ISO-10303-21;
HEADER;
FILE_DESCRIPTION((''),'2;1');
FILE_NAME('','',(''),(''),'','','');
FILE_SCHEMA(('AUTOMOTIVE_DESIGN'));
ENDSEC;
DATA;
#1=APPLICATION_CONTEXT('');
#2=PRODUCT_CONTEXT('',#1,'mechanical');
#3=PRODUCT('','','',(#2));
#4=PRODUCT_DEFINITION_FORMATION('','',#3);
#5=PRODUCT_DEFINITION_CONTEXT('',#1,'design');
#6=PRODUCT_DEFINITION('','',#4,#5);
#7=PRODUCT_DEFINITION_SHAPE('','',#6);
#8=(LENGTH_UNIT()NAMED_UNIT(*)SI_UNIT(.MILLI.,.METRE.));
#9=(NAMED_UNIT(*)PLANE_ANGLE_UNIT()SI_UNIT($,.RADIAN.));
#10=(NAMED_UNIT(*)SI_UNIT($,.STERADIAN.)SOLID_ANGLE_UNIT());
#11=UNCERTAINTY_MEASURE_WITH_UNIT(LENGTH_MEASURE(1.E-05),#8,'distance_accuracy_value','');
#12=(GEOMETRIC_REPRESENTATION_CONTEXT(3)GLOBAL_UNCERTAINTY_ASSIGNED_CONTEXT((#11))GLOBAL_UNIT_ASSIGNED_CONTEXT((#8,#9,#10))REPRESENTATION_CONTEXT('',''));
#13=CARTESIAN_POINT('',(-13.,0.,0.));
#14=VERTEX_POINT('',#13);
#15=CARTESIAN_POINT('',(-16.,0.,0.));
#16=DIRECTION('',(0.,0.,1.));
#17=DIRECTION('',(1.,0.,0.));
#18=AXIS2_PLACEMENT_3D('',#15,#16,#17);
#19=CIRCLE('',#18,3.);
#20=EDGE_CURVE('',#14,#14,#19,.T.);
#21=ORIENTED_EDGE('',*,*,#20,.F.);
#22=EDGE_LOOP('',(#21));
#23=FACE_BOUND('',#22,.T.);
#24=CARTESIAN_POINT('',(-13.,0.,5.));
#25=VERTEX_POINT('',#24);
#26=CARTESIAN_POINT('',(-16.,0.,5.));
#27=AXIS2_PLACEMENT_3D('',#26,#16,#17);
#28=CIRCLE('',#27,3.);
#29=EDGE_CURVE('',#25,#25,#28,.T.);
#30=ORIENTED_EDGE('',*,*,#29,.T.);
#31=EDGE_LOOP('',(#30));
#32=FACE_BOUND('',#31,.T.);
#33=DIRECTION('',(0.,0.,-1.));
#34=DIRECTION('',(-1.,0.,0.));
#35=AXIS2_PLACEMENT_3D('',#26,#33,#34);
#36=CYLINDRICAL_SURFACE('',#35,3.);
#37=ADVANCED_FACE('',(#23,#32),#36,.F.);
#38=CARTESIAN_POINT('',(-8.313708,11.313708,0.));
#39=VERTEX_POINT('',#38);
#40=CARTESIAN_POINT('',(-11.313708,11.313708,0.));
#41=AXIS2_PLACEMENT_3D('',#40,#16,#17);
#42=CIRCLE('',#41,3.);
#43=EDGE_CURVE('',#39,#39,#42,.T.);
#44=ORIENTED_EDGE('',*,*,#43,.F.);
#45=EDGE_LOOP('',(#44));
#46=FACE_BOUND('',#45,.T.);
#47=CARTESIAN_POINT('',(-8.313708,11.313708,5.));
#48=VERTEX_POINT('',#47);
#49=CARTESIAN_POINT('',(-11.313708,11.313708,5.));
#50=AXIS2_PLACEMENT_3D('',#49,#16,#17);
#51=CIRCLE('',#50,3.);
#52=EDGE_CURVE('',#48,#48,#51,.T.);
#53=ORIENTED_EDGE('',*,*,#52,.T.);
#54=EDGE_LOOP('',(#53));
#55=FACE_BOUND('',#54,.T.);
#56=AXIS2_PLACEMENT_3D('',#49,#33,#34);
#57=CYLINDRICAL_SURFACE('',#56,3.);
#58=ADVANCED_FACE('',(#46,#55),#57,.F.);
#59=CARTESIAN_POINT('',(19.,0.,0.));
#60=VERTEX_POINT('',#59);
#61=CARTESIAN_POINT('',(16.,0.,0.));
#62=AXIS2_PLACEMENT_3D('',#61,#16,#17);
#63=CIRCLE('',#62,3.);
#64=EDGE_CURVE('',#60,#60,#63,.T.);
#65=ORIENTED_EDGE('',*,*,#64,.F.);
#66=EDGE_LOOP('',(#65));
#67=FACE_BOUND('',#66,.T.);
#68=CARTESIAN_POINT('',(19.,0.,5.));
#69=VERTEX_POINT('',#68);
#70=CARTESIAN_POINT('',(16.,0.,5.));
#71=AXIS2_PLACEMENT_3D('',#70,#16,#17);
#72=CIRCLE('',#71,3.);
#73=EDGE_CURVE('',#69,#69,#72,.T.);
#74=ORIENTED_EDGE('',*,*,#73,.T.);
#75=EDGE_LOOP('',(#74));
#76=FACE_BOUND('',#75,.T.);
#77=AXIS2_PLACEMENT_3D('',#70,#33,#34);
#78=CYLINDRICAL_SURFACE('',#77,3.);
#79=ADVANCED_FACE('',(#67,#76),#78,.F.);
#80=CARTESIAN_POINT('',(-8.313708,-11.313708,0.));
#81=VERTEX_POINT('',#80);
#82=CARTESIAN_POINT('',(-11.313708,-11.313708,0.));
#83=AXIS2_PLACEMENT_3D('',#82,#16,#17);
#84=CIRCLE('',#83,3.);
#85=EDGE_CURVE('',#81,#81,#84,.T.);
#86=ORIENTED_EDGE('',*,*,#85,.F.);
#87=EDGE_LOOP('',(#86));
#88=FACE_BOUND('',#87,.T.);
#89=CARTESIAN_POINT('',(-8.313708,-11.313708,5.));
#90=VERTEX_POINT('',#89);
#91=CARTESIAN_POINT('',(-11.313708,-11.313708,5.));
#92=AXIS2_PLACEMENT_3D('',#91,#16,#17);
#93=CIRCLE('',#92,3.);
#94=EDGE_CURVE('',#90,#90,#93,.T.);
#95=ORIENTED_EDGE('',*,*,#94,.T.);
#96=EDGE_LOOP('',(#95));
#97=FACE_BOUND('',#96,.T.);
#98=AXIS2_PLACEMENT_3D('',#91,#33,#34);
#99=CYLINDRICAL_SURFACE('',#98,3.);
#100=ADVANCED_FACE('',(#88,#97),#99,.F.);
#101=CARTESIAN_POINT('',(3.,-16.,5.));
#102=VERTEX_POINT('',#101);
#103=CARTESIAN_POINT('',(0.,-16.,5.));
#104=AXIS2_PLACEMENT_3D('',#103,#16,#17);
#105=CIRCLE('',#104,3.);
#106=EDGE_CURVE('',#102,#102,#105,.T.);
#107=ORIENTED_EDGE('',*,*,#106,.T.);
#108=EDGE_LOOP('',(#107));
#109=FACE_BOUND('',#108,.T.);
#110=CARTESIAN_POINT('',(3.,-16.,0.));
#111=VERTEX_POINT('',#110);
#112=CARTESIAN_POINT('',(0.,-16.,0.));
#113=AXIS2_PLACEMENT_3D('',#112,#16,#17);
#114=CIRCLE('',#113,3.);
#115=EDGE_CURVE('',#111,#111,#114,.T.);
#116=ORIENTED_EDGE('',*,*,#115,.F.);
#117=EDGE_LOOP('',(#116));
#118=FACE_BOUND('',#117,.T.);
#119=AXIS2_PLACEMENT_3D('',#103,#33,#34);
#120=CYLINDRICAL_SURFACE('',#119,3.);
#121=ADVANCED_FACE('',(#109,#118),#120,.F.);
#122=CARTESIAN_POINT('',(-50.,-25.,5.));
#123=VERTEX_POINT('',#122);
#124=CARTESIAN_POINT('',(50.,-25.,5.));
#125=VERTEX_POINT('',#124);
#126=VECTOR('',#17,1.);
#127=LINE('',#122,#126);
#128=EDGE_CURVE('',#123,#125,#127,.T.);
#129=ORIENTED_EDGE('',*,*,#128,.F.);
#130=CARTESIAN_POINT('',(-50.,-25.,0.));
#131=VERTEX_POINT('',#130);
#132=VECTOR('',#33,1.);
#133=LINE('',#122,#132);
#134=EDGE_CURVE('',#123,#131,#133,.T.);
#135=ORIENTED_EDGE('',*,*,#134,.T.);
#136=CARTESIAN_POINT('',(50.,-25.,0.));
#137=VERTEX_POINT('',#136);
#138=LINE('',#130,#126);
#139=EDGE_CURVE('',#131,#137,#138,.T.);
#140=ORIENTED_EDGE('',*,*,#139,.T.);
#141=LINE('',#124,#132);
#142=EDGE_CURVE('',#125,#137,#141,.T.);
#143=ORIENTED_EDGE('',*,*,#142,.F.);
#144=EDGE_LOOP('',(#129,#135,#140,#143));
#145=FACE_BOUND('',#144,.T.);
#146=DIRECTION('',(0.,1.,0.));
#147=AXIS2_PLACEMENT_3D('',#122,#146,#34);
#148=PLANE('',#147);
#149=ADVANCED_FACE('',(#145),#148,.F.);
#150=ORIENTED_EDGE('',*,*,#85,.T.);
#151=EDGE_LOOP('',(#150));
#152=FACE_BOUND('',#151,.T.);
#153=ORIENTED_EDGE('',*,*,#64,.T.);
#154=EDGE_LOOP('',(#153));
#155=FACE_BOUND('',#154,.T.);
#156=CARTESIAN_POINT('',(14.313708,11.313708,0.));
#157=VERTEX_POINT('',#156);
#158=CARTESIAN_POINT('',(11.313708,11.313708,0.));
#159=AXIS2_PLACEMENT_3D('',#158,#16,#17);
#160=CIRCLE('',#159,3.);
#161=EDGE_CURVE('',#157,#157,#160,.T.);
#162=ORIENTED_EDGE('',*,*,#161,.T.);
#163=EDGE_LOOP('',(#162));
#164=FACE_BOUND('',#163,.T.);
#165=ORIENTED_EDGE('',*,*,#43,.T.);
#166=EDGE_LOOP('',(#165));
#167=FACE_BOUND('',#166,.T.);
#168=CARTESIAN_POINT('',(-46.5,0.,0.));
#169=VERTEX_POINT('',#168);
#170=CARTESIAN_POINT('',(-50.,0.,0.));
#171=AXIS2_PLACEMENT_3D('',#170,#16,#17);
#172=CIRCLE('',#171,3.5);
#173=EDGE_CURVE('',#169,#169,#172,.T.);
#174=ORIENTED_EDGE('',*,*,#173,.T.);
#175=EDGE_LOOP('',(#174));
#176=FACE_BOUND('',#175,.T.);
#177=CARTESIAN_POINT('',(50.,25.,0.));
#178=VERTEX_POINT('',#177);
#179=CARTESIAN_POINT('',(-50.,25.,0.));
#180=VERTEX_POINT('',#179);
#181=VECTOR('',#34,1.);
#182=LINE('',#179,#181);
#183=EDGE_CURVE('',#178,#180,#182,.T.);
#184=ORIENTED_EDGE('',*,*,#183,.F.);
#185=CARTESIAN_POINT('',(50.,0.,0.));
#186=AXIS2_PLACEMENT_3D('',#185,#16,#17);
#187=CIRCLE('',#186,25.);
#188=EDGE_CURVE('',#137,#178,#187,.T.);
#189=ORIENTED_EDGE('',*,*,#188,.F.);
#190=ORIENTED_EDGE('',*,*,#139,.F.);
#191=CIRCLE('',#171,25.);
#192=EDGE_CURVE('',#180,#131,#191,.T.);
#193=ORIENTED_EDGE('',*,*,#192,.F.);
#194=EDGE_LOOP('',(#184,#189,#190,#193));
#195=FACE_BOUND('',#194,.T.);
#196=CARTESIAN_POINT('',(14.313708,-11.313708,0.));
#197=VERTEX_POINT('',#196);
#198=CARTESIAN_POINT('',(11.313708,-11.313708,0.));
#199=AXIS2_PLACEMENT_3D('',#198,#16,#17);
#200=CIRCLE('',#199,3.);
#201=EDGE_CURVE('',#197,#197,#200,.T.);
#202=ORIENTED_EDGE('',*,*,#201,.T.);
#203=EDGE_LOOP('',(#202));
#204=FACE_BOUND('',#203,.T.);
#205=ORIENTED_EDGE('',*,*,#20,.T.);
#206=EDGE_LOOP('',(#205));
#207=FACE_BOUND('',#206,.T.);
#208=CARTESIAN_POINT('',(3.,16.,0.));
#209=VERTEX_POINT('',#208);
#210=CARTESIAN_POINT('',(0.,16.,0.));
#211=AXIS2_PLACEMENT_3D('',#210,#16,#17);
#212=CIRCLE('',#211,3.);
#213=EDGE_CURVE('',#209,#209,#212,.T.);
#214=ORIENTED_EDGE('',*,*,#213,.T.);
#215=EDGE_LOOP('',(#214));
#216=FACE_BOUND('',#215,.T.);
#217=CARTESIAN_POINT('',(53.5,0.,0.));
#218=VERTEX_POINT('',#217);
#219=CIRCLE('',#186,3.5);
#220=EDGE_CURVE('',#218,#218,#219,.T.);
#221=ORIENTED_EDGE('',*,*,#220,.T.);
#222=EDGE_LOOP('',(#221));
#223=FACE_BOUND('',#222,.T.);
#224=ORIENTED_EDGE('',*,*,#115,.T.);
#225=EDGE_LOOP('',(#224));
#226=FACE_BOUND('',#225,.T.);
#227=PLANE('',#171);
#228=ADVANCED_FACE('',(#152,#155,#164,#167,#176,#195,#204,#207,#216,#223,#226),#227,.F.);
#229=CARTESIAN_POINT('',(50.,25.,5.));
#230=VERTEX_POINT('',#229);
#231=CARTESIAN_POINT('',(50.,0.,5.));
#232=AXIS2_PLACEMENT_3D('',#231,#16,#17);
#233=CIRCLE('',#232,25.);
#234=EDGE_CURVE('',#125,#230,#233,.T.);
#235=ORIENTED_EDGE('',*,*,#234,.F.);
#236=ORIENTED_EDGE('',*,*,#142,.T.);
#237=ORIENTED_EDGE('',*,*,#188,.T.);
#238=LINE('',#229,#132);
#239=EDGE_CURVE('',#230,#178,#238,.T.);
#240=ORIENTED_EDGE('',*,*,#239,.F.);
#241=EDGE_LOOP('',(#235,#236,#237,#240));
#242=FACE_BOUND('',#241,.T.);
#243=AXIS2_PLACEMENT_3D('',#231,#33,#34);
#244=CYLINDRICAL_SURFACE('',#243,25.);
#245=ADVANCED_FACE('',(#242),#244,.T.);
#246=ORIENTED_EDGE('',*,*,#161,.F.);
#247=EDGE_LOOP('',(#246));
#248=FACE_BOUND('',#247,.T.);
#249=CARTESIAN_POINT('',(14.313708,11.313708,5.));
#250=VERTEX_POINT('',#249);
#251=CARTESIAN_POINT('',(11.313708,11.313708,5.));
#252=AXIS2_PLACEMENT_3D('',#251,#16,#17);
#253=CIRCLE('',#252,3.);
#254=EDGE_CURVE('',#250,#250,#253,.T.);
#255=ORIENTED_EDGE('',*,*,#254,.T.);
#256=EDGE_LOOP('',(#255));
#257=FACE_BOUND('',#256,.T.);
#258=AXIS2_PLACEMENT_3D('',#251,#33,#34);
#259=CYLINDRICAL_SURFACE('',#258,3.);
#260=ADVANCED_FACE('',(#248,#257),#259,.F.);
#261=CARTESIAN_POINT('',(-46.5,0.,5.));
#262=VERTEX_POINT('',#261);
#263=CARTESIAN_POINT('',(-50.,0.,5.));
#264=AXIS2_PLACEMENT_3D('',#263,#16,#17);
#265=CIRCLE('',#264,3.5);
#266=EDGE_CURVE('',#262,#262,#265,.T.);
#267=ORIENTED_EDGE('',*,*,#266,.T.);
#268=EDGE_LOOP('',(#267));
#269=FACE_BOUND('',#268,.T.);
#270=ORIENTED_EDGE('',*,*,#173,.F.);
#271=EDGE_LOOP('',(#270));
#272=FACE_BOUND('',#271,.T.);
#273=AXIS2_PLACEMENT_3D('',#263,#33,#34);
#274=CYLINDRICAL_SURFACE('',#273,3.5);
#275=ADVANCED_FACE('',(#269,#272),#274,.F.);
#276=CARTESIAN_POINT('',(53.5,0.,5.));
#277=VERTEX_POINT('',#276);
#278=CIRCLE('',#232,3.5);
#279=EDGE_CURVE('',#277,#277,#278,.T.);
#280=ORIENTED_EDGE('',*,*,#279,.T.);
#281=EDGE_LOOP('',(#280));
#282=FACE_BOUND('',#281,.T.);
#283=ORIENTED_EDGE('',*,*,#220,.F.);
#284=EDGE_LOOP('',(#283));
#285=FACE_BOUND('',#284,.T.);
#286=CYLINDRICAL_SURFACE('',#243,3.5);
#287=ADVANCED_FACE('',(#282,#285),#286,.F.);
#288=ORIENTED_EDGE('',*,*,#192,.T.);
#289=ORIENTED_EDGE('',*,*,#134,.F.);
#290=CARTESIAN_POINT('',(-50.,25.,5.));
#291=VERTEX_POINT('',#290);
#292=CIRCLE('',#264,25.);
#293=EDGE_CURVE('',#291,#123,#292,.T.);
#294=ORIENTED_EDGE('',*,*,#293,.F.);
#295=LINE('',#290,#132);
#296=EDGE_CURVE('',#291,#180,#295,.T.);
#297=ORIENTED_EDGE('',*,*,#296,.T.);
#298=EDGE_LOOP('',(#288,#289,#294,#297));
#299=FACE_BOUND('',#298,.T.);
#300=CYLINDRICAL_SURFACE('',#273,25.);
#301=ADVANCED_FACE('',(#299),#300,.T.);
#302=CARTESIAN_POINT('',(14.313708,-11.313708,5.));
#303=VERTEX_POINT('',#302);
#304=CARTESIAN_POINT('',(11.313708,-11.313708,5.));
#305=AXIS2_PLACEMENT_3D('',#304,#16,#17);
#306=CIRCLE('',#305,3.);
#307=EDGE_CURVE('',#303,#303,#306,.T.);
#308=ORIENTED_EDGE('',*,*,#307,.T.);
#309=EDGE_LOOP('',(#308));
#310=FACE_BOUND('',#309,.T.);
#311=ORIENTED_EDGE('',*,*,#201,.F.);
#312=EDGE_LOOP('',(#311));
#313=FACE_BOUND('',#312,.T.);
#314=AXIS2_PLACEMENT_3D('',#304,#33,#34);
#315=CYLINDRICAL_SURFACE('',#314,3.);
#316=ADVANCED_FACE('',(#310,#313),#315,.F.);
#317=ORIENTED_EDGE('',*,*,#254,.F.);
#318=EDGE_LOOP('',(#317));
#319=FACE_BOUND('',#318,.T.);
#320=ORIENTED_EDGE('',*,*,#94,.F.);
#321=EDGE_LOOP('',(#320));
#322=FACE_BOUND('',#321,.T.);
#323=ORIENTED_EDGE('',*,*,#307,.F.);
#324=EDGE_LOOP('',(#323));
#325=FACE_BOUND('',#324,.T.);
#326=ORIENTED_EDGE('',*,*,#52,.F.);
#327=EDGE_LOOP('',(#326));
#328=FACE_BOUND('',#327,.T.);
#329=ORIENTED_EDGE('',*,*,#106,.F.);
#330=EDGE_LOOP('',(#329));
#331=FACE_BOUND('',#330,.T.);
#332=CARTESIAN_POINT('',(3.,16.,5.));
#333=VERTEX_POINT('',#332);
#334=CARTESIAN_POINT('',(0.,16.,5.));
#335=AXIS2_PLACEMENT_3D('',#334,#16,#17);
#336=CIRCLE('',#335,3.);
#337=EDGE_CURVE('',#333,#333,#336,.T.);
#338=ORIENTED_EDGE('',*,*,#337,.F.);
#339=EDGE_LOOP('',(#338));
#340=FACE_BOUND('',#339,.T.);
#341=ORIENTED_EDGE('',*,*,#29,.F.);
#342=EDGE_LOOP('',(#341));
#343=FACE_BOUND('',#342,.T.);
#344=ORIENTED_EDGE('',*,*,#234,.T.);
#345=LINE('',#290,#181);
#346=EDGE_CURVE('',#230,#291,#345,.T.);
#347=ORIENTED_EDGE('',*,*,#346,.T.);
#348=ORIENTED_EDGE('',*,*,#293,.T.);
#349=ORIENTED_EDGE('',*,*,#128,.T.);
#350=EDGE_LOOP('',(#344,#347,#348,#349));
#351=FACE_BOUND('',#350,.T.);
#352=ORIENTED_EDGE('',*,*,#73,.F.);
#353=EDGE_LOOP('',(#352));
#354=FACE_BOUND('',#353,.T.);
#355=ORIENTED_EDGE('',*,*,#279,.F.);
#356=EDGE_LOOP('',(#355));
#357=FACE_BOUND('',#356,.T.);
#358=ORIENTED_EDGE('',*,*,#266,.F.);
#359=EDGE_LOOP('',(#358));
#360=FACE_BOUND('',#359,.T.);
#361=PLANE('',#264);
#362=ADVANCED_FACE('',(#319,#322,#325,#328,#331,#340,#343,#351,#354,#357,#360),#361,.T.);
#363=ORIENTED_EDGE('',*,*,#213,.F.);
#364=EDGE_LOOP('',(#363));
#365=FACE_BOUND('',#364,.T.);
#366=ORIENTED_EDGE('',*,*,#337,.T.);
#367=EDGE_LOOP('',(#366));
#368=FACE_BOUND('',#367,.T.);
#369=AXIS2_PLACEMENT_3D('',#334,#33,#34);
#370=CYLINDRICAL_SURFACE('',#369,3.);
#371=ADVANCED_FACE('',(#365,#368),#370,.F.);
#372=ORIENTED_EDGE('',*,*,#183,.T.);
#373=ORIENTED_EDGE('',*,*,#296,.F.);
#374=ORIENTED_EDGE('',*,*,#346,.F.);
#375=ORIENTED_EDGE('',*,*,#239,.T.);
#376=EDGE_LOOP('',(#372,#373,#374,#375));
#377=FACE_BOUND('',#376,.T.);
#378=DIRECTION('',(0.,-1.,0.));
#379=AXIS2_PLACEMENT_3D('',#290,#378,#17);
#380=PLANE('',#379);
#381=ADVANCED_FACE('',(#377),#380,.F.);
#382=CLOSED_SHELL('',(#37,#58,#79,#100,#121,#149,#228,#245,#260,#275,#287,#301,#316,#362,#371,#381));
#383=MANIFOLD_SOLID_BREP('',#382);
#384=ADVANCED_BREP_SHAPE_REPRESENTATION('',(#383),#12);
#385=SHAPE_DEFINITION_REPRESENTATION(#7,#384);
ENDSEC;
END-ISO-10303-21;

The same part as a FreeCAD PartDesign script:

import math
import FreeCAD as App
import Part
import Sketcher

V = App.Vector

doc = App.newDocument("Part")
body = doc.addObject("PartDesign::Body", "Body")

sketch1 = body.newObject("Sketcher::SketchObject", "Sketch")
sketch1.AttachmentSupport = (doc.getObject("XY_Plane"), [""])
sketch1.MapMode = "FlatFace"
sketch1.addGeometry(Part.LineSegment(V(50, 25, 0), V(-50, 25, 0)), False)
sketch1.addGeometry(Part.ArcOfCircle(Part.Circle(V(-50, 0, 0), V(0, 0, 1), 25), math.radians(90), math.radians(270)), False)
sketch1.addGeometry(Part.LineSegment(V(-50, -25, 0), V(50, -25, 0)), False)
sketch1.addGeometry(Part.ArcOfCircle(Part.Circle(V(50, 0, 0), V(0, 0, 1), 25), math.radians(-90), math.radians(90)), False)
sketch1.addGeometry(Part.Circle(V(0, -16, 0), V(0, 0, 1), 3), False)
sketch1.addGeometry(Part.Circle(V(11.3, -11.3, 0), V(0, 0, 1), 3), False)
sketch1.addGeometry(Part.Circle(V(-11.3, -11.3, 0), V(0, 0, 1), 3), False)
sketch1.addGeometry(Part.Circle(V(50, 0, 0), V(0, 0, 1), 3.5), False)
sketch1.addGeometry(Part.Circle(V(16, 0, 0), V(0, 0, 1), 3), False)
sketch1.addGeometry(Part.Circle(V(11.3, 11.3, 0), V(0, 0, 1), 3), False)
sketch1.addGeometry(Part.Circle(V(0, 16, 0), V(0, 0, 1), 3), False)
sketch1.addGeometry(Part.Circle(V(-16, 0, 0), V(0, 0, 1), 3), False)
sketch1.addGeometry(Part.Circle(V(-50, 0, 0), V(0, 0, 1), 3.5), False)
sketch1.addGeometry(Part.Circle(V(-11.3, 11.3, 0), V(0, 0, 1), 3), False)
sketch1.addConstraint(Sketcher.Constraint("Tangent", 0, 2, 1, 1))
sketch1.addConstraint(Sketcher.Constraint("Tangent", 1, 2, 2, 1))
sketch1.addConstraint(Sketcher.Constraint("Tangent", 2, 2, 3, 1))
sketch1.addConstraint(Sketcher.Constraint("Tangent", 3, 2, 0, 1))
sketch1.addConstraint(Sketcher.Constraint("Horizontal", 0))
sketch1.addConstraint(Sketcher.Constraint("Horizontal", 2))
sketch1.addConstraint(Sketcher.Constraint("Coincident", 7, 3, 3, 3))
sketch1.addConstraint(Sketcher.Constraint("Coincident", 12, 3, 1, 3))
sketch1.addConstraint(Sketcher.Constraint("Equal", 4, 5))
sketch1.addConstraint(Sketcher.Constraint("Equal", 5, 6))
sketch1.addConstraint(Sketcher.Constraint("Equal", 6, 8))
sketch1.addConstraint(Sketcher.Constraint("Equal", 8, 9))
sketch1.addConstraint(Sketcher.Constraint("Equal", 9, 10))
sketch1.addConstraint(Sketcher.Constraint("Equal", 10, 11))
sketch1.addConstraint(Sketcher.Constraint("Equal", 7, 12))
sketch1.addConstraint(Sketcher.Constraint("Equal", 11, 13))
sketch1.addConstraint(Sketcher.Constraint("Symmetric", 1, 3, 3, 3, -1, 1))
sketch1.addConstraint(Sketcher.Constraint("Symmetric", 6, 3, 9, 3, -1, 1))
sketch1.addConstraint(Sketcher.Constraint("Symmetric", 4, 3, 10, 3, -1, 1))
sketch1.addConstraint(Sketcher.Constraint("Symmetric", 8, 3, 11, 3, -1, 1))
sketch1.addConstraint(Sketcher.Constraint("Symmetric", 5, 3, 13, 3, -1, 1))
sketch1.addConstraint(Sketcher.Constraint("Symmetric", 5, 3, 6, 3, -2))
sketch1.addConstraint(Sketcher.Constraint("PointOnObject", 4, 3, -2))
sketch1.addConstraint(Sketcher.Constraint("PointOnObject", 8, 3, -1))
sketch1.addConstraint(Sketcher.Constraint("Diameter", 4, 6.0))
sketch1.addConstraint(Sketcher.Constraint("Diameter", 7, 7.0))
sketch1.addConstraint(Sketcher.Constraint("Radius", 1, 25.0))
sketch1.addConstraint(Sketcher.Constraint("DistanceX", 0, 2, 0, 1, 100.0))
sketch1.addConstraint(Sketcher.Constraint("DistanceY", 4, 3, -1, 1, 16.0))
sketch1.addConstraint(Sketcher.Constraint("DistanceX", -1, 1, 8, 3, 16.0))
sketch1.addConstraint(Sketcher.Constraint("DistanceX", -1, 1, 5, 3, 11.313708))
sketch1.addConstraint(Sketcher.Constraint("DistanceY", 5, 3, -1, 1, 11.313708))
pad1 = body.newObject("PartDesign::Pad", "Pad")
pad1.Profile = sketch1
pad1.Length = 5

doc.recompute()
